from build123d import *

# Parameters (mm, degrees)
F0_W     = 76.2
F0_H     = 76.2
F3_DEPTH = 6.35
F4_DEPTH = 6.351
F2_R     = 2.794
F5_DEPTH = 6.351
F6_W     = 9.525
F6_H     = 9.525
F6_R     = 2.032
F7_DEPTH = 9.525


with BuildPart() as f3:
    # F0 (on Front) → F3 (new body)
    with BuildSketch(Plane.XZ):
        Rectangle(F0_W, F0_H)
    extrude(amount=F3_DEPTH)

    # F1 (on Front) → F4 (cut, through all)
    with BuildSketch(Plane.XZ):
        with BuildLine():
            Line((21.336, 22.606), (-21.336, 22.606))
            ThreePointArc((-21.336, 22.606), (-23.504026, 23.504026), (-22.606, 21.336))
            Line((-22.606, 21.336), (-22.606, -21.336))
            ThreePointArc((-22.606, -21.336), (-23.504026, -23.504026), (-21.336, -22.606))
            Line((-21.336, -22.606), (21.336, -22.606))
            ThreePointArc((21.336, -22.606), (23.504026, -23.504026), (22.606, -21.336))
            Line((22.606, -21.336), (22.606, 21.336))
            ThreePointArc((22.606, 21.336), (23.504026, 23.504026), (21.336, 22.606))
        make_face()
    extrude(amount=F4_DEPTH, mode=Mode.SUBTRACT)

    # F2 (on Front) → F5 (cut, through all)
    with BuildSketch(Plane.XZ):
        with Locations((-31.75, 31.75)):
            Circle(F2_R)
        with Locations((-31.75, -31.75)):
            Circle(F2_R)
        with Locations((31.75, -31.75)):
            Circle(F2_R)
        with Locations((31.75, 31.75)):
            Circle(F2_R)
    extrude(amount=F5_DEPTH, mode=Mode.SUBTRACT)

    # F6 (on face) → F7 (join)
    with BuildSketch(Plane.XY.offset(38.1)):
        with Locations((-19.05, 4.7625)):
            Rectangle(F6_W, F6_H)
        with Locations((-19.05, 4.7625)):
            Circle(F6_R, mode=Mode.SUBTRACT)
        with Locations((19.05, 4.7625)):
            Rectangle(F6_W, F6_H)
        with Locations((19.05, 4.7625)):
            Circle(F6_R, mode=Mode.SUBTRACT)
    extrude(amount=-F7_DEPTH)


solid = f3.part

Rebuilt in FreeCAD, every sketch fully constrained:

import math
import FreeCAD as App
import Part
import Sketcher
from FreeCAD import Vector
Q = App.Units.Quantity

doc = App.newDocument("Part")
body = doc.addObject("PartDesign::Body", "Body")

# Sketch on XZ plane
sketch1 = body.newObject("Sketcher::SketchObject", "Sketch")
sketch1.AttachmentSupport = (doc.getObject("XZ_Plane"), [""])
sketch1.MapMode = "FlatFace"
sketch1.addGeometry(Part.LineSegment(Vector(-38.1, 38.1, 0), Vector(-38.1, -38.1, 0)), False)
sketch1.addGeometry(Part.LineSegment(Vector(-38.1, -38.1, 0), Vector(38.1, -38.1, 0)), False)
sketch1.addGeometry(Part.LineSegment(Vector(38.1, -38.1, 0), Vector(38.1, 38.1, 0)), False)
sketch1.addGeometry(Part.LineSegment(Vector(38.1, 38.1, 0), Vector(-38.1, 38.1, 0)), False)
sketch1.addConstraint(Sketcher.Constraint("Coincident", 0, 2, 1, 1))
sketch1.addConstraint(Sketcher.Constraint("Coincident", 1, 2, 2, 1))
sketch1.addConstraint(Sketcher.Constraint("Coincident", 2, 2, 3, 1))
sketch1.addConstraint(Sketcher.Constraint("Coincident", 3, 2, 0, 1))
sketch1.addConstraint(Sketcher.Constraint("Vertical", 0))
sketch1.addConstraint(Sketcher.Constraint("Horizontal", 1))
sketch1.addConstraint(Sketcher.Constraint("Vertical", 2))
sketch1.addConstraint(Sketcher.Constraint("Horizontal", 3))
sketch1.addConstraint(Sketcher.Constraint("Symmetric", 0, 2, 2, 2, -1, 1))
sketch1.addConstraint(Sketcher.Constraint("Equal", 3, 0))
sketch1.addConstraint(Sketcher.Constraint("DistanceX", 1, 1, 1, 2, Q("3 in")))
pad1 = body.newObject("PartDesign::Pad", "Pad")
pad1.Profile = sketch1
pad1.Length = Q("0.25 in")

# Sketch on XZ plane
sketch2 = body.newObject("Sketcher::SketchObject", "Sketch001")
sketch2.AttachmentSupport = (doc.getObject("XZ_Plane"), [""])
sketch2.MapMode = "FlatFace"
sketch2.addGeometry(Part.LineSegment(Vector(21.336, 22.606, 0), Vector(-21.336, 22.606, 0)), False)
sketch2.addGeometry(Part.ArcOfCircle(Part.Circle(Vector(-22.606, 22.606, 0), Vector(0, 0, 1), 1.27), math.radians(-0.00001), math.radians(270.00001)), False)
sketch2.addGeometry(Part.LineSegment(Vector(-22.606, 21.336, 0), Vector(-22.606, -21.336, 0)), False)
sketch2.addGeometry(Part.ArcOfCircle(Part.Circle(Vector(-22.606, -22.606, 0), Vector(0, 0, 1), 1.27), math.radians(89.99999), math.radians(360.00001)), False)
sketch2.addGeometry(Part.LineSegment(Vector(-21.336, -22.606, 0), Vector(21.336, -22.606, 0)), False)
sketch2.addGeometry(Part.ArcOfCircle(Part.Circle(Vector(22.606, -22.606, 0), Vector(0, 0, 1), 1.27), math.radians(179.99999), math.radians(450.00001)), False)
sketch2.addGeometry(Part.LineSegment(Vector(22.606, -21.336, 0), Vector(22.606, 21.336, 0)), False)
sketch2.addGeometry(Part.ArcOfCircle(Part.Circle(Vector(22.606, 22.606, 0), Vector(0, 0, 1), 1.27), math.radians(-90.00001), math.radians(180.00001)), False)
sketch2.addConstraint(Sketcher.Constraint("Coincident", 0, 2, 1, 1))
sketch2.addConstraint(Sketcher.Constraint("Coincident", 1, 2, 2, 1))
sketch2.addConstraint(Sketcher.Constraint("Coincident", 2, 2, 3, 1))
sketch2.addConstraint(Sketcher.Constraint("Coincident", 3, 2, 4, 1))
sketch2.addConstraint(Sketcher.Constraint("Coincident", 4, 2, 5, 1))
sketch2.addConstraint(Sketcher.Constraint("Coincident", 5, 2, 6, 1))
sketch2.addConstraint(Sketcher.Constraint("Coincident", 6, 2, 7, 1))
sketch2.addConstraint(Sketcher.Constraint("Coincident", 7, 2, 0, 1))
sketch2.addConstraint(Sketcher.Constraint("Horizontal", 0))
sketch2.addConstraint(Sketcher.Constraint("Vertical", 2))
sketch2.addConstraint(Sketcher.Constraint("Horizontal", 4))
sketch2.addConstraint(Sketcher.Constraint("Vertical", 6))
sketch2.addConstraint(Sketcher.Constraint("Equal", 1, 3))
sketch2.addConstraint(Sketcher.Constraint("Equal", 3, 5))
sketch2.addConstraint(Sketcher.Constraint("Equal", 5, 7))
sketch2.addConstraint(Sketcher.Constraint("Symmetric", 1, 3, 5, 3, -1, 1))
sketch2.addConstraint(Sketcher.Constraint("Symmetric", 3, 3, 7, 3, -1, 1))
sketch2.addConstraint(Sketcher.Constraint("Symmetric", 3, 3, 5, 3, -2))
sketch2.addConstraint(Sketcher.Constraint("Horizontal", 7, 3, 0, 2))
sketch2.addConstraint(Sketcher.Constraint("Horizontal", 5, 3, 3, 2))
sketch2.addConstraint(Sketcher.Constraint("Vertical", 3, 3, 1, 2))
sketch2.addConstraint(Sketcher.Constraint("Vertical", 7, 3, 5, 2))
sketch2.addConstraint(Sketcher.Constraint("Equal", 4, 2))
sketch2.addConstraint(Sketcher.Constraint("Radius", 1, Q("0.05 in")))
sketch2.addConstraint(Sketcher.Constraint("DistanceX", 0, 2, 0, 1, Q("1.68 in")))
pocket1 = body.newObject("PartDesign::Pocket", "Pocket")
pocket1.Profile = sketch2
pocket1.Type = "ThroughAll"
pocket1.Reversed = True

# Sketch on XZ plane
sketch3 = body.newObject("Sketcher::SketchObject", "Sketch002")
sketch3.AttachmentSupport = (doc.getObject("XZ_Plane"), [""])
sketch3.MapMode = "FlatFace"
sketch3.addGeometry(Part.Circle(Vector(-31.75, 31.75, 0), Vector(0, 0, 1), 2.794), False)
sketch3.addGeometry(Part.Circle(Vector(-31.75, -31.75, 0), Vector(0, 0, 1), 2.794), False)
sketch3.addGeometry(Part.Circle(Vector(31.75, -31.75, 0), Vector(0, 0, 1), 2.794), False)
sketch3.addGeometry(Part.Circle(Vector(31.75, 31.75, 0), Vector(0, 0, 1), 2.794), False)
sketch3.addConstraint(Sketcher.Constraint("Equal", 0, 1))
sketch3.addConstraint(Sketcher.Constraint("Equal", 1, 2))
sketch3.addConstraint(Sketcher.Constraint("Equal", 2, 3))
sketch3.addConstraint(Sketcher.Constraint("Symmetric", 0, 3, 2, 3, -1, 1))
sketch3.addConstraint(Sketcher.Constraint("Symmetric", 1, 3, 3, 3, -1, 1))
sketch3.addConstraint(Sketcher.Constraint("Symmetric", 1, 3, 2, 3, -2))
sketch3.addConstraint(Sketcher.Constraint("Diameter", 0, Q("0.22 in")))
sketch3.addConstraint(Sketcher.Constraint("DistanceY", 1, 3, 0, 3, Q("2.5 in")))
sketch3.addConstraint(Sketcher.Constraint("DistanceX", 1, 3, 2, 3, Q("2.5 in")))
pocket2 = body.newObject("PartDesign::Pocket", "Pocket001")
pocket2.Profile = sketch3
pocket2.Type = "ThroughAll"
pocket2.Reversed = True

# Sketch on XY plane
sketch4 = body.newObject("Sketcher::SketchObject", "Sketch003")
sketch4.AttachmentSupport = (doc.getObject("XY_Plane"), [""])
sketch4.MapMode = "FlatFace"
sketch4.AttachmentOffset = App.Placement(Vector(0, 0, 1.5 * 25.4), App.Rotation())
sketch4.addGeometry(Part.LineSegment(Vector(-23.8125, 9.525, 0), Vector(-23.8125, 0, 0)), False)
sketch4.addGeometry(Part.LineSegment(Vector(-23.8125, 0, 0), Vector(-14.2875, 0, 0)), False)
sketch4.addGeometry(Part.LineSegment(Vector(-14.2875, 0, 0), Vector(-14.2875, 9.525, 0)), False)
sketch4.addGeometry(Part.LineSegment(Vector(-14.2875, 9.525, 0), Vector(-23.8125, 9.525, 0)), False)
sketch4.addGeometry(Part.Circle(Vector(-19.05, 4.7625, 0), Vector(0, 0, 1), 2.032), False)
sketch4.addGeometry(Part.LineSegment(Vector(14.2875, 9.525, 0), Vector(14.2875, 0, 0)), False)
sketch4.addGeometry(Part.LineSegment(Vector(14.2875, 0, 0), Vector(23.8125, 0, 0)), False)
sketch4.addGeometry(Part.LineSegment(Vector(23.8125, 0, 0), Vector(23.8125, 9.525, 0)), False)
sketch4.addGeometry(Part.LineSegment(Vector(23.8125, 9.525, 0), Vector(14.2875, 9.525, 0)), False)
sketch4.addGeometry(Part.Circle(Vector(19.05, 4.7625, 0), Vector(0, 0, 1), 2.032), False)
sketch4.addConstraint(Sketcher.Constraint("Coincident", 0, 2, 1, 1))
sketch4.addConstraint(Sketcher.Constraint("Coincident", 1, 2, 2, 1))
sketch4.addConstraint(Sketcher.Constraint("Coincident", 2, 2, 3, 1))
sketch4.addConstraint(Sketcher.Constraint("Coincident", 3, 2, 0, 1))
sketch4.addConstraint(Sketcher.Constraint("Coincident", 5, 2, 6, 1))
sketch4.addConstraint(Sketcher.Constraint("Coincident", 6, 2, 7, 1))
sketch4.addConstraint(Sketcher.Constraint("Coincident", 7, 2, 8, 1))
sketch4.addConstraint(Sketcher.Constraint("Coincident", 8, 2, 5, 1))
sketch4.addConstraint(Sketcher.Constraint("Vertical", 0))
sketch4.addConstraint(Sketcher.Constraint("Horizontal", 1))
sketch4.addConstraint(Sketcher.Constraint("Vertical", 2))
sketch4.addConstraint(Sketcher.Constraint("Horizontal", 3))
sketch4.addConstraint(Sketcher.Constraint("Vertical", 5))
sketch4.addConstraint(Sketcher.Constraint("Horizontal", 6))
sketch4.addConstraint(Sketcher.Constraint("Vertical", 7))
sketch4.addConstraint(Sketcher.Constraint("Horizontal", 8))
sketch4.addConstraint(Sketcher.Constraint("Equal", 4, 9))
sketch4.addConstraint(Sketcher.Constraint("Symmetric", 1, 2, 5, 2, -1, 1))
sketch4.addConstraint(Sketcher.Constraint("Symmetric", 4, 3, 9, 3, -2))
sketch4.addConstraint(Sketcher.Constraint("Symmetric", 0, 2, 6, 2, -2))
sketch4.addConstraint(Sketcher.Constraint("Horizontal", 3, 2, 7, 2))
sketch4.addConstraint(Sketcher.Constraint("Equal", 8, 0))
sketch4.addConstraint(Sketcher.Constraint("Diameter", 4, Q("0.16 in")))
sketch4.addConstraint(Sketcher.Constraint("DistanceX", 4, 3, 9, 3, Q("1.5 in")))
sketch4.addConstraint(Sketcher.Constraint("DistanceX", 0, 2, 5, 2, Q("1.5 in")))
sketch4.addConstraint(Sketcher.Constraint("DistanceX", 1, 1, 1, 2, Q("0.375 in")))
sketch4.addConstraint(Sketcher.Constraint("DistanceY", -1, 1, 4, 3, Q("0.1875 in")))
pad2 = body.newObject("PartDesign::Pad", "Pad001")
pad2.Profile = sketch4
pad2.Length = Q("0.375 in")
pad2.Reversed = True

doc.recompute()
